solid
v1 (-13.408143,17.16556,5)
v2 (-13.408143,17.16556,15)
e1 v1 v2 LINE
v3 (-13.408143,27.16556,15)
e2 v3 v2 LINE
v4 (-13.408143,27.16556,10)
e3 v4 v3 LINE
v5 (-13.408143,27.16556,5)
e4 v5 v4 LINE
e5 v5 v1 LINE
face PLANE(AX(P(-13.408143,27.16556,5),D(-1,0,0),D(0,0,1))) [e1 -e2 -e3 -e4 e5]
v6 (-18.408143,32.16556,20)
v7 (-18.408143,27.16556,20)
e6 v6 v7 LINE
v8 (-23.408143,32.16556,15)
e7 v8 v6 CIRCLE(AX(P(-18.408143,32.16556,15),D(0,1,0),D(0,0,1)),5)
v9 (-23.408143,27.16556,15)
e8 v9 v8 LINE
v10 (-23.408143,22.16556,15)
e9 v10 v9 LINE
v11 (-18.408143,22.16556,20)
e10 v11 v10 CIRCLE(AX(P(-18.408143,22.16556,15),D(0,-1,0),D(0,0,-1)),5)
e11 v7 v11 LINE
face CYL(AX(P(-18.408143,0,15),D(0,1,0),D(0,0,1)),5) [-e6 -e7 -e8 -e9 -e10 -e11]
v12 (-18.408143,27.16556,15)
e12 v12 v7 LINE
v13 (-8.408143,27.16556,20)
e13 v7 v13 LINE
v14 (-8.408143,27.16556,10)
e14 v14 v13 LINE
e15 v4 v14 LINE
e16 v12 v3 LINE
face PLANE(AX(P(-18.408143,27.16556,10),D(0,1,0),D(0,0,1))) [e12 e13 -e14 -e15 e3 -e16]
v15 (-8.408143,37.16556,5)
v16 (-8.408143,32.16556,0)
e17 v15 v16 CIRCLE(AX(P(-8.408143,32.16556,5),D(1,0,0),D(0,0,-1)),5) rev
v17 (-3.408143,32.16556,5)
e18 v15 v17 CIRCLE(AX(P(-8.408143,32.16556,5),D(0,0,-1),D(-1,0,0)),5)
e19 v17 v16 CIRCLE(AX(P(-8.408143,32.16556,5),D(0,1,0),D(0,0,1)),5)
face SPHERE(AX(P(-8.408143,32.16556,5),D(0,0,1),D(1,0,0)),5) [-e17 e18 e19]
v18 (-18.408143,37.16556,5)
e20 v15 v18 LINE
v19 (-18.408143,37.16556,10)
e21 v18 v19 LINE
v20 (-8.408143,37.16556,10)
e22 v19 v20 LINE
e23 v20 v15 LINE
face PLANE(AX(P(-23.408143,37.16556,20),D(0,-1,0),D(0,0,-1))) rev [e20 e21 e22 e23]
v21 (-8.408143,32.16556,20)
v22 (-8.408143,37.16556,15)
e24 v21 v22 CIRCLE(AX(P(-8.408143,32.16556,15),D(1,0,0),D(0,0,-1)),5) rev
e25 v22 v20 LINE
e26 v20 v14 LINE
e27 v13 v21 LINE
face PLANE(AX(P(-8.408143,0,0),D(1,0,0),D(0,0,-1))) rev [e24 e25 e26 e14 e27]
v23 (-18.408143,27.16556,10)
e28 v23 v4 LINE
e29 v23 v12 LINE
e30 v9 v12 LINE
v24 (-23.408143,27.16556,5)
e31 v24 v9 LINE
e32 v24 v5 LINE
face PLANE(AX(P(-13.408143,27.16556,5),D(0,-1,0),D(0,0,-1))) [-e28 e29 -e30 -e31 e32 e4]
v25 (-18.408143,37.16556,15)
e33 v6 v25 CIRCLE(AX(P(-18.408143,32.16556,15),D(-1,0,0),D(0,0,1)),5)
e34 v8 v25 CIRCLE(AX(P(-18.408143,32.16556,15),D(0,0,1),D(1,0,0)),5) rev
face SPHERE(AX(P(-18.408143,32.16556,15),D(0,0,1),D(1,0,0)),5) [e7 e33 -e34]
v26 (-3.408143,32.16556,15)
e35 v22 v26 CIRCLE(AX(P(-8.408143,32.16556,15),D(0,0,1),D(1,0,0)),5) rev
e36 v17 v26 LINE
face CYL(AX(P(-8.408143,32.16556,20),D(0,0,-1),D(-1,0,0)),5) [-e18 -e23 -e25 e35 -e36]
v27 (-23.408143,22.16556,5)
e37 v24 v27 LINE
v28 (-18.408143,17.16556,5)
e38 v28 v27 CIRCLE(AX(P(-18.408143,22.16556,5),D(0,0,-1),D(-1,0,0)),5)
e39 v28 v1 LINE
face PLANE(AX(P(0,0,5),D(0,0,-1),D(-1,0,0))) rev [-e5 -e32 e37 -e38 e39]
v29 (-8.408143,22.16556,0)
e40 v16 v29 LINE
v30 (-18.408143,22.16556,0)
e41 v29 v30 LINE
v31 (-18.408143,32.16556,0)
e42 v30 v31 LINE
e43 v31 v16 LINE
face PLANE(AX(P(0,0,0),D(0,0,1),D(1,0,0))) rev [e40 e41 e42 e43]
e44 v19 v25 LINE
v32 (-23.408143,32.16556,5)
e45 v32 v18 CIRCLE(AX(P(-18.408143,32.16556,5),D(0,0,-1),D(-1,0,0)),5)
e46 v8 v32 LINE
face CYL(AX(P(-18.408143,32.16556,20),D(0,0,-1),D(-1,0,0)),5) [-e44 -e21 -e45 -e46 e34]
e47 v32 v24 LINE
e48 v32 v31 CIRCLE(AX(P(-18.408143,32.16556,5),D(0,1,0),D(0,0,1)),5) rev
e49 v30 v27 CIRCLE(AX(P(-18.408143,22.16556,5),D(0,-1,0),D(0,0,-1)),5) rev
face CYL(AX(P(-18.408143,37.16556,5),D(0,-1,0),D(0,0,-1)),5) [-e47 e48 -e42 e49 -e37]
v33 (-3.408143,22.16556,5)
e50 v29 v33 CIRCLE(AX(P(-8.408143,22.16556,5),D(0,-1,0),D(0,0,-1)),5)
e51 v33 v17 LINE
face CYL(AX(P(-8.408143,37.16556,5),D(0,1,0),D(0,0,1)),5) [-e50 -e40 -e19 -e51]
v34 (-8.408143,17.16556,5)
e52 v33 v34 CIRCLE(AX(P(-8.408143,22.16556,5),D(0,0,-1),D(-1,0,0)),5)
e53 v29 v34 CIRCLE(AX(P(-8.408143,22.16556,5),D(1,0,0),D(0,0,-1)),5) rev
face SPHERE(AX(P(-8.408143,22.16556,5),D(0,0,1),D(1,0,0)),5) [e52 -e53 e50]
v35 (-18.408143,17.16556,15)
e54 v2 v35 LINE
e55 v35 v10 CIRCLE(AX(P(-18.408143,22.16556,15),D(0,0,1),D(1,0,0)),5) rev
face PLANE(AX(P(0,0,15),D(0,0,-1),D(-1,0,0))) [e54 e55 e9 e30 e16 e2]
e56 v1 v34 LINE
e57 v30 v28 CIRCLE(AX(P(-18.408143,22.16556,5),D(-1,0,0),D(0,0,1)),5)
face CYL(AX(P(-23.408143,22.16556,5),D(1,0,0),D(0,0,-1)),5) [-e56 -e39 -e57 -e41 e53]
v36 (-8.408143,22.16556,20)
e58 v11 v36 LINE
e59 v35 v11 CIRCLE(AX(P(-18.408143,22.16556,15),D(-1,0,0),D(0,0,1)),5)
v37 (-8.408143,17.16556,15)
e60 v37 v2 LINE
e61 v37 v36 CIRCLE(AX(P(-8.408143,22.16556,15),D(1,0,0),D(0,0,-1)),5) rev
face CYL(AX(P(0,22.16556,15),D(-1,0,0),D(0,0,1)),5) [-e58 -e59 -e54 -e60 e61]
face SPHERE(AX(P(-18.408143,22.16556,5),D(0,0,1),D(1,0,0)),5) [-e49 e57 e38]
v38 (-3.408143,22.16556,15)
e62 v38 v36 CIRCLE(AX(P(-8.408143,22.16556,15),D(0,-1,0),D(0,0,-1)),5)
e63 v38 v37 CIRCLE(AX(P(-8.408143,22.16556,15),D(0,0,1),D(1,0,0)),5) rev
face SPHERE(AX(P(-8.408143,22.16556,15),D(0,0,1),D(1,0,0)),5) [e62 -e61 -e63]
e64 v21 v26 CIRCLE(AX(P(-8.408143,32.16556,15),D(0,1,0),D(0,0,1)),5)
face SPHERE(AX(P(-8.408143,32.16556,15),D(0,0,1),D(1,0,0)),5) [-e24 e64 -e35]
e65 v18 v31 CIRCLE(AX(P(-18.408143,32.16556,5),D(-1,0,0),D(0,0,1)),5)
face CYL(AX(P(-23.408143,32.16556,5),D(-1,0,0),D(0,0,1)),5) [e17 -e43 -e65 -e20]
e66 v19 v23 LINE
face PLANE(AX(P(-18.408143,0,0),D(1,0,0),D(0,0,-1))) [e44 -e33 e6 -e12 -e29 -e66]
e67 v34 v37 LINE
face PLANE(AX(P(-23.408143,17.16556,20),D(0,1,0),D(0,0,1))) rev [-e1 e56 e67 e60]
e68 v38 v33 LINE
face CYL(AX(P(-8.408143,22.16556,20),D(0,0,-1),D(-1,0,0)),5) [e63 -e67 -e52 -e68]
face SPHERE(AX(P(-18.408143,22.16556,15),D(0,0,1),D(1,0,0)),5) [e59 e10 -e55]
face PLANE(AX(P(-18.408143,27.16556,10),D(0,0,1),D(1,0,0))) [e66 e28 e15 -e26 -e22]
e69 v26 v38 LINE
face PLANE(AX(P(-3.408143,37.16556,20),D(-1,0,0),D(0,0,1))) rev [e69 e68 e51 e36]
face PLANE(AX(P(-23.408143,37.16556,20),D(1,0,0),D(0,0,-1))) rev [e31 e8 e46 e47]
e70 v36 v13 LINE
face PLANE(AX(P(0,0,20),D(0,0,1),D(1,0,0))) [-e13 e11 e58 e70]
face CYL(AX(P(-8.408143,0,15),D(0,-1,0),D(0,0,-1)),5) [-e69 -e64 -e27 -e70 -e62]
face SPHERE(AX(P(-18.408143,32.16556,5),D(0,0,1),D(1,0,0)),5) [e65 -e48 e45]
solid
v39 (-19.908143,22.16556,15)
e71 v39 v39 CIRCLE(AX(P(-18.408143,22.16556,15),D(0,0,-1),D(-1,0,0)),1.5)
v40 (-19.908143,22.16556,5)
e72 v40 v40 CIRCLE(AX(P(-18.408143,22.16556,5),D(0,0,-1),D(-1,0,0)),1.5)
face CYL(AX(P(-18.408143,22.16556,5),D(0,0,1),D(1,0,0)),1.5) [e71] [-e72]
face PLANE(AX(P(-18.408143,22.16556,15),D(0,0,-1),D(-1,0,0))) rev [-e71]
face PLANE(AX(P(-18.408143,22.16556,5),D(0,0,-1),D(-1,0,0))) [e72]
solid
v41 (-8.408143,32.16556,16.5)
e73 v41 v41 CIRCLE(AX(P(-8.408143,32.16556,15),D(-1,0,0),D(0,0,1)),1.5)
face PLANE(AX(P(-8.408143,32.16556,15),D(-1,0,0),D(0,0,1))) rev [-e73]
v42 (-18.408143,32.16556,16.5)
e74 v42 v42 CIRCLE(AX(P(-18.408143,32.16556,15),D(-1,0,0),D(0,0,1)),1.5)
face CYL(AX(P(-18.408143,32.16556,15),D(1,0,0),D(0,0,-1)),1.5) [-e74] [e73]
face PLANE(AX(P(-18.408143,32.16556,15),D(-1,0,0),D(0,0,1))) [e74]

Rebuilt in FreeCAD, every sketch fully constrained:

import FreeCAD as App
import Part
import Sketcher

V = App.Vector


def add_polygon(sketch, points):
    """Adds a closed chain of lines whose ends are joined by coincident constraints."""
    first, n = sketch.GeometryCount, len(points)
    for a, b in zip(points, points[1:] + points[:1]):
        sketch.addGeometry(Part.LineSegment(App.Vector(*a, 0), App.Vector(*b, 0)), False)
    for i in range(n):
        sketch.addConstraint(Sketcher.Constraint("Coincident", first + i, 2, first + (i + 1) % n, 1))

doc = App.newDocument("Part")
params = doc.addObject("Spreadsheet::Sheet", "Params")
for row, (alias, value) in enumerate([
    ("sketch1_width", "20 mm"),
    ("pad1_length", "20 mm"),
    ("fillet_radius", "5 mm"),
    ("sketch2_width", "10 mm"),
    ("pocket1_length", "10 mm"),
    ("sketch3_width", "10 mm"),
    ("pocket2_length", "10 mm"),
    ("sketch4_diameter", "3 mm"),
    ("pad2_length", "10 mm"),
    ("sketch5_diameter", "3 mm"),
    ("pad3_length", "10 mm"),
], start=1):
    params.set(f"A{row}", alias)
    params.set(f"B{row}", "=" + value)
    params.setAlias(f"B{row}", alias)

body = doc.addObject("PartDesign::Body", "Body")

sketch1 = body.newObject("Sketcher::SketchObject", "Sketch")
sketch1.AttachmentSupport = (doc.getObject("XY_Plane"), [""])
sketch1.MapMode = "FlatFace"
add_polygon(sketch1, [(-23, 37), (-23, 17), (-3, 17), (-3, 37)])
sketch1.addConstraint(Sketcher.Constraint("Vertical", 0))
sketch1.addConstraint(Sketcher.Constraint("Horizontal", 1))
sketch1.addConstraint(Sketcher.Constraint("Vertical", 2))
sketch1.addConstraint(Sketcher.Constraint("Horizontal", 3))
sketch1.addConstraint(Sketcher.Constraint("Equal", 3, 0))
sketch1.addConstraint(Sketcher.Constraint("DistanceX", 1, 1, 1, 2, 20.0))
sketch1.addConstraint(Sketcher.Constraint("DistanceY", -1, 1, 0, 2, 17.16556))
sketch1.addConstraint(Sketcher.Constraint("DistanceX", 0, 2, -1, 1, 23.408143))
sketch1.setExpression("Constraints[9]", "Params.sketch1_width")
pad1 = body.newObject("PartDesign::Pad", "Pad")
pad1.Profile = sketch1
pad1.setExpression("Length", "Params.pad1_length")
doc.recompute()

fillet = body.newObject("PartDesign::Fillet", "Fillet")
fillet.Base = (pad1, ["Edge1"])
fillet.UseAllEdges = True
fillet.setExpression("Radius", "Params.fillet_radius")

sketch2 = body.newObject("Sketcher::SketchObject", "Sketch001")
sketch2.AttachmentSupport = (doc.getObject("YZ_Plane"), [""])
sketch2.MapMode = "FlatFace"
sketch2.AttachmentOffset = App.Placement(V(0, 0, -8.408143), App.Rotation())
add_polygon(sketch2, [(37, 10), (27, 10), (27, 20), (37, 20)])
sketch2.addConstraint(Sketcher.Constraint("Horizontal", 0))
sketch2.addConstraint(Sketcher.Constraint("Vertical", 1))
sketch2.addConstraint(Sketcher.Constraint("Horizontal", 2))
sketch2.addConstraint(Sketcher.Constraint("Vertical", 3))
sketch2.addConstraint(Sketcher.Constraint("Equal", 2, 1))
sketch2.addConstraint(Sketcher.Constraint("DistanceX", 0, 2, 0, 1, 10.0))
sketch2.addConstraint(Sketcher.Constraint("DistanceY", -1, 1, 0, 2, 10.0))
sketch2.addConstraint(Sketcher.Constraint("DistanceX", -1, 1, 0, 2, 27.16556))
sketch2.setExpression("Constraints[9]", "Params.sketch2_width")
pocket1 = body.newObject("PartDesign::Pocket", "Pocket")
pocket1.Profile = sketch2
pocket1.setExpression("Length", "Params.pocket1_length")

sketch3 = body.newObject("Sketcher::SketchObject", "Sketch002")
sketch3.AttachmentSupport = (doc.getObject("XY_Plane"), [""])
sketch3.MapMode = "FlatFace"
sketch3.AttachmentOffset = App.Placement(V(0, 0, 15), App.Rotation())
add_polygon(sketch3, [(-13, 27), (-13, 17), (-23, 17), (-23, 27)])
sketch3.addConstraint(Sketcher.Constraint("Vertical", 0))
sketch3.addConstraint(Sketcher.Constraint("Horizontal", 1))
sketch3.addConstraint(Sketcher.Constraint("Vertical", 2))
sketch3.addConstraint(Sketcher.Constraint("Horizontal", 3))
sketch3.addConstraint(Sketcher.Constraint("Equal", 3, 0))
sketch3.addConstraint(Sketcher.Constraint("DistanceX", 1, 2, 1, 1, 10.0))
sketch3.addConstraint(Sketcher.Constraint("DistanceY", -1, 1, 0, 2, 17.16556))
sketch3.addConstraint(Sketcher.Constraint("DistanceX", 0, 2, -1, 1, 13.408143))
sketch3.setExpression("Constraints[9]", "Params.sketch3_width")
pocket2 = body.newObject("PartDesign::Pocket", "Pocket001")
pocket2.Profile = sketch3
pocket2.setExpression("Length", "Params.pocket2_length")
body2 = doc.addObject("PartDesign::Body", "Body001")

sketch4 = body2.newObject("Sketcher::SketchObject", "Sketch003")
sketch4.AttachmentSupport = (doc.getObject("YZ_Plane001"), [""])
sketch4.MapMode = "FlatFace"
sketch4.AttachmentOffset = App.Placement(V(0, 0, -8.408143), App.Rotation())
sketch4.addGeometry(Part.Circle(V(32.2, 15, 0), V(0, 0, 1), 1.5), False)
sketch4.addConstraint(Sketcher.Constraint("Diameter", 0, 3.0))
sketch4.addConstraint(Sketcher.Constraint("DistanceY", -1, 1, 0, 3, 15.0))
sketch4.addConstraint(Sketcher.Constraint("DistanceX", -1, 1, 0, 3, 32.16556))
sketch4.setExpression("Constraints[0]", "Params.sketch4_diameter")
pad2 = body2.newObject("PartDesign::Pad", "Pad001")
pad2.Profile = sketch4
pad2.setExpression("Length", "Params.pad2_length")
pad2.Reversed = True
body3 = doc.addObject("PartDesign::Body", "Body002")

sketch5 = body3.newObject("Sketcher::SketchObject", "Sketch004")
sketch5.AttachmentSupport = (doc.getObject("XY_Plane002"), [""])
sketch5.MapMode = "FlatFace"
sketch5.AttachmentOffset = App.Placement(V(0, 0, 15), App.Rotation())
sketch5.addGeometry(Part.Circle(V(-18.4, 22.2, 0), V(0, 0, 1), 1.5), False)
sketch5.addConstraint(Sketcher.Constraint("Diameter", 0, 3.0))
sketch5.addConstraint(Sketcher.Constraint("DistanceY", -1, 1, 0, 3, 22.16556))
sketch5.addConstraint(Sketcher.Constraint("DistanceX", 0, 3, -1, 1, 18.408143))
sketch5.setExpression("Constraints[0]", "Params.sketch5_diameter")
pad3 = body3.newObject("PartDesign::Pad", "Pad002")
pad3.Profile = sketch5
pad3.setExpression("Length", "Params.pad3_length")
pad3.Reversed = True

doc.recompute()
